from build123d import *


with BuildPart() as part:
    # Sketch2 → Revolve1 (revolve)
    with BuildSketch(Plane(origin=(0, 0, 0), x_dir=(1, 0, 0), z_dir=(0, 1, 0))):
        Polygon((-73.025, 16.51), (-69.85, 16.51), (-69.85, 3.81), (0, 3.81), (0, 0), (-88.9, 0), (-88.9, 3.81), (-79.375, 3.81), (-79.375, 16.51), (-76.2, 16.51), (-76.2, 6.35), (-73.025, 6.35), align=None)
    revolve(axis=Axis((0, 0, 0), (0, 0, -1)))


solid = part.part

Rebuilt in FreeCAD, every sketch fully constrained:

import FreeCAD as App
import Part
import Sketcher
from FreeCAD import Vector
Q = App.Units.Quantity

doc = App.newDocument("Part")
body = doc.addObject("PartDesign::Body", "Body")

sketch1 = doc.addObject("Sketcher::SketchObject", "Sketch")
body.addObject(sketch1)
sketch1.AttachmentSupport = (doc.XZ_Plane, [""])
sketch1.MapMode = "FlatFace"
sketch1.addGeometry([
    Part.LineSegment(Vector(-69.8, -16.5, 0), Vector(-73, -16.5, 0)),
    Part.LineSegment(Vector(-73, -16.5, 0), Vector(-73, -6.3, 0)),
    Part.LineSegment(Vector(-73, -6.3, 0), Vector(-76.2, -6.3, 0)),
    Part.LineSegment(Vector(-76.2, -6.3, 0), Vector(-76.2, -16.5, 0)),
    Part.LineSegment(Vector(-76.2, -16.5, 0), Vector(-79.4, -16.5, 0)),
    Part.LineSegment(Vector(-79.4, -16.5, 0), Vector(-79.4, -3.8, 0)),
    Part.LineSegment(Vector(-79.4, -3.8, 0), Vector(-88.9, -3.8, 0)),
    Part.LineSegment(Vector(-88.9, -3.8, 0), Vector(-88.9, 0, 0)),
    Part.LineSegment(Vector(-88.9, 0, 0), Vector(0, 0, 0)),
    Part.LineSegment(Vector(0, 0, 0), Vector(0, -3.8, 0)),
    Part.LineSegment(Vector(0, -3.8, 0), Vector(-69.8, -3.8, 0)),
    Part.LineSegment(Vector(-69.8, -3.8, 0), Vector(-69.8, -16.5, 0)),
], False)
sketch1.addConstraint([
    Sketcher.Constraint("Coincident", 0, 2, 1, 1),
    Sketcher.Constraint("Coincident", 1, 2, 2, 1),
    Sketcher.Constraint("Coincident", 2, 2, 3, 1),
    Sketcher.Constraint("Coincident", 3, 2, 4, 1),
    Sketcher.Constraint("Coincident", 4, 2, 5, 1),
    Sketcher.Constraint("Coincident", 5, 2, 6, 1),
    Sketcher.Constraint("Coincident", 6, 2, 7, 1),
    Sketcher.Constraint("Coincident", 7, 2, 8, 1),
    Sketcher.Constraint("Coincident", 8, 2, 9, 1),
    Sketcher.Constraint("Coincident", 9, 2, 10, 1),
    Sketcher.Constraint("Coincident", 10, 2, 11, 1),
    Sketcher.Constraint("Coincident", 11, 2, 0, 1),
    Sketcher.Constraint("Horizontal", 0),
    Sketcher.Constraint("Vertical", 1),
    Sketcher.Constraint("Horizontal", 2),
    Sketcher.Constraint("Vertical", 3),
    Sketcher.Constraint("Horizontal", 4),
    Sketcher.Constraint("Vertical", 5),
    Sketcher.Constraint("Horizontal", 6),
    Sketcher.Constraint("Vertical", 7),
    Sketcher.Constraint("Horizontal", 8),
    Sketcher.Constraint("Vertical", 9),
    Sketcher.Constraint("Horizontal", 10),
    Sketcher.Constraint("Vertical", 11),
    Sketcher.Constraint("Coincident", 8, 2, -1, 1),
    Sketcher.Constraint("Horizontal", 0, 2, 3, 2),
    Sketcher.Constraint("Horizontal", 6, 2, 9, 2),
    Sketcher.Constraint("Equal", 0, 2),
    Sketcher.Constraint("Equal", 2, 4),
    Sketcher.Constraint("DistanceX", 8, 1, 8, 2, Q("3.5 in")),
    Sketcher.Constraint("DistanceY", 1, 1, 1, 2, Q("0.4 in")),
    Sketcher.Constraint("DistanceY", 5, 1, 5, 2, Q("0.5 in")),
    Sketcher.Constraint("DistanceX", 2, 2, -1, 1, Q("3 in")),
    Sketcher.Constraint("DistanceX", 10, 2, 10, 1, Q("2.75 in")),
    Sketcher.Constraint("DistanceY", 7, 1, 7, 2, Q("0.15 in")),
])
revolution = doc.addObject("PartDesign::Revolution", "Revolution")
body.addObject(revolution)
revolution.Profile = sketch1
revolution.ReferenceAxis = (sketch1, ["V_Axis"])
revolution.Angle = 360

doc.recompute()
